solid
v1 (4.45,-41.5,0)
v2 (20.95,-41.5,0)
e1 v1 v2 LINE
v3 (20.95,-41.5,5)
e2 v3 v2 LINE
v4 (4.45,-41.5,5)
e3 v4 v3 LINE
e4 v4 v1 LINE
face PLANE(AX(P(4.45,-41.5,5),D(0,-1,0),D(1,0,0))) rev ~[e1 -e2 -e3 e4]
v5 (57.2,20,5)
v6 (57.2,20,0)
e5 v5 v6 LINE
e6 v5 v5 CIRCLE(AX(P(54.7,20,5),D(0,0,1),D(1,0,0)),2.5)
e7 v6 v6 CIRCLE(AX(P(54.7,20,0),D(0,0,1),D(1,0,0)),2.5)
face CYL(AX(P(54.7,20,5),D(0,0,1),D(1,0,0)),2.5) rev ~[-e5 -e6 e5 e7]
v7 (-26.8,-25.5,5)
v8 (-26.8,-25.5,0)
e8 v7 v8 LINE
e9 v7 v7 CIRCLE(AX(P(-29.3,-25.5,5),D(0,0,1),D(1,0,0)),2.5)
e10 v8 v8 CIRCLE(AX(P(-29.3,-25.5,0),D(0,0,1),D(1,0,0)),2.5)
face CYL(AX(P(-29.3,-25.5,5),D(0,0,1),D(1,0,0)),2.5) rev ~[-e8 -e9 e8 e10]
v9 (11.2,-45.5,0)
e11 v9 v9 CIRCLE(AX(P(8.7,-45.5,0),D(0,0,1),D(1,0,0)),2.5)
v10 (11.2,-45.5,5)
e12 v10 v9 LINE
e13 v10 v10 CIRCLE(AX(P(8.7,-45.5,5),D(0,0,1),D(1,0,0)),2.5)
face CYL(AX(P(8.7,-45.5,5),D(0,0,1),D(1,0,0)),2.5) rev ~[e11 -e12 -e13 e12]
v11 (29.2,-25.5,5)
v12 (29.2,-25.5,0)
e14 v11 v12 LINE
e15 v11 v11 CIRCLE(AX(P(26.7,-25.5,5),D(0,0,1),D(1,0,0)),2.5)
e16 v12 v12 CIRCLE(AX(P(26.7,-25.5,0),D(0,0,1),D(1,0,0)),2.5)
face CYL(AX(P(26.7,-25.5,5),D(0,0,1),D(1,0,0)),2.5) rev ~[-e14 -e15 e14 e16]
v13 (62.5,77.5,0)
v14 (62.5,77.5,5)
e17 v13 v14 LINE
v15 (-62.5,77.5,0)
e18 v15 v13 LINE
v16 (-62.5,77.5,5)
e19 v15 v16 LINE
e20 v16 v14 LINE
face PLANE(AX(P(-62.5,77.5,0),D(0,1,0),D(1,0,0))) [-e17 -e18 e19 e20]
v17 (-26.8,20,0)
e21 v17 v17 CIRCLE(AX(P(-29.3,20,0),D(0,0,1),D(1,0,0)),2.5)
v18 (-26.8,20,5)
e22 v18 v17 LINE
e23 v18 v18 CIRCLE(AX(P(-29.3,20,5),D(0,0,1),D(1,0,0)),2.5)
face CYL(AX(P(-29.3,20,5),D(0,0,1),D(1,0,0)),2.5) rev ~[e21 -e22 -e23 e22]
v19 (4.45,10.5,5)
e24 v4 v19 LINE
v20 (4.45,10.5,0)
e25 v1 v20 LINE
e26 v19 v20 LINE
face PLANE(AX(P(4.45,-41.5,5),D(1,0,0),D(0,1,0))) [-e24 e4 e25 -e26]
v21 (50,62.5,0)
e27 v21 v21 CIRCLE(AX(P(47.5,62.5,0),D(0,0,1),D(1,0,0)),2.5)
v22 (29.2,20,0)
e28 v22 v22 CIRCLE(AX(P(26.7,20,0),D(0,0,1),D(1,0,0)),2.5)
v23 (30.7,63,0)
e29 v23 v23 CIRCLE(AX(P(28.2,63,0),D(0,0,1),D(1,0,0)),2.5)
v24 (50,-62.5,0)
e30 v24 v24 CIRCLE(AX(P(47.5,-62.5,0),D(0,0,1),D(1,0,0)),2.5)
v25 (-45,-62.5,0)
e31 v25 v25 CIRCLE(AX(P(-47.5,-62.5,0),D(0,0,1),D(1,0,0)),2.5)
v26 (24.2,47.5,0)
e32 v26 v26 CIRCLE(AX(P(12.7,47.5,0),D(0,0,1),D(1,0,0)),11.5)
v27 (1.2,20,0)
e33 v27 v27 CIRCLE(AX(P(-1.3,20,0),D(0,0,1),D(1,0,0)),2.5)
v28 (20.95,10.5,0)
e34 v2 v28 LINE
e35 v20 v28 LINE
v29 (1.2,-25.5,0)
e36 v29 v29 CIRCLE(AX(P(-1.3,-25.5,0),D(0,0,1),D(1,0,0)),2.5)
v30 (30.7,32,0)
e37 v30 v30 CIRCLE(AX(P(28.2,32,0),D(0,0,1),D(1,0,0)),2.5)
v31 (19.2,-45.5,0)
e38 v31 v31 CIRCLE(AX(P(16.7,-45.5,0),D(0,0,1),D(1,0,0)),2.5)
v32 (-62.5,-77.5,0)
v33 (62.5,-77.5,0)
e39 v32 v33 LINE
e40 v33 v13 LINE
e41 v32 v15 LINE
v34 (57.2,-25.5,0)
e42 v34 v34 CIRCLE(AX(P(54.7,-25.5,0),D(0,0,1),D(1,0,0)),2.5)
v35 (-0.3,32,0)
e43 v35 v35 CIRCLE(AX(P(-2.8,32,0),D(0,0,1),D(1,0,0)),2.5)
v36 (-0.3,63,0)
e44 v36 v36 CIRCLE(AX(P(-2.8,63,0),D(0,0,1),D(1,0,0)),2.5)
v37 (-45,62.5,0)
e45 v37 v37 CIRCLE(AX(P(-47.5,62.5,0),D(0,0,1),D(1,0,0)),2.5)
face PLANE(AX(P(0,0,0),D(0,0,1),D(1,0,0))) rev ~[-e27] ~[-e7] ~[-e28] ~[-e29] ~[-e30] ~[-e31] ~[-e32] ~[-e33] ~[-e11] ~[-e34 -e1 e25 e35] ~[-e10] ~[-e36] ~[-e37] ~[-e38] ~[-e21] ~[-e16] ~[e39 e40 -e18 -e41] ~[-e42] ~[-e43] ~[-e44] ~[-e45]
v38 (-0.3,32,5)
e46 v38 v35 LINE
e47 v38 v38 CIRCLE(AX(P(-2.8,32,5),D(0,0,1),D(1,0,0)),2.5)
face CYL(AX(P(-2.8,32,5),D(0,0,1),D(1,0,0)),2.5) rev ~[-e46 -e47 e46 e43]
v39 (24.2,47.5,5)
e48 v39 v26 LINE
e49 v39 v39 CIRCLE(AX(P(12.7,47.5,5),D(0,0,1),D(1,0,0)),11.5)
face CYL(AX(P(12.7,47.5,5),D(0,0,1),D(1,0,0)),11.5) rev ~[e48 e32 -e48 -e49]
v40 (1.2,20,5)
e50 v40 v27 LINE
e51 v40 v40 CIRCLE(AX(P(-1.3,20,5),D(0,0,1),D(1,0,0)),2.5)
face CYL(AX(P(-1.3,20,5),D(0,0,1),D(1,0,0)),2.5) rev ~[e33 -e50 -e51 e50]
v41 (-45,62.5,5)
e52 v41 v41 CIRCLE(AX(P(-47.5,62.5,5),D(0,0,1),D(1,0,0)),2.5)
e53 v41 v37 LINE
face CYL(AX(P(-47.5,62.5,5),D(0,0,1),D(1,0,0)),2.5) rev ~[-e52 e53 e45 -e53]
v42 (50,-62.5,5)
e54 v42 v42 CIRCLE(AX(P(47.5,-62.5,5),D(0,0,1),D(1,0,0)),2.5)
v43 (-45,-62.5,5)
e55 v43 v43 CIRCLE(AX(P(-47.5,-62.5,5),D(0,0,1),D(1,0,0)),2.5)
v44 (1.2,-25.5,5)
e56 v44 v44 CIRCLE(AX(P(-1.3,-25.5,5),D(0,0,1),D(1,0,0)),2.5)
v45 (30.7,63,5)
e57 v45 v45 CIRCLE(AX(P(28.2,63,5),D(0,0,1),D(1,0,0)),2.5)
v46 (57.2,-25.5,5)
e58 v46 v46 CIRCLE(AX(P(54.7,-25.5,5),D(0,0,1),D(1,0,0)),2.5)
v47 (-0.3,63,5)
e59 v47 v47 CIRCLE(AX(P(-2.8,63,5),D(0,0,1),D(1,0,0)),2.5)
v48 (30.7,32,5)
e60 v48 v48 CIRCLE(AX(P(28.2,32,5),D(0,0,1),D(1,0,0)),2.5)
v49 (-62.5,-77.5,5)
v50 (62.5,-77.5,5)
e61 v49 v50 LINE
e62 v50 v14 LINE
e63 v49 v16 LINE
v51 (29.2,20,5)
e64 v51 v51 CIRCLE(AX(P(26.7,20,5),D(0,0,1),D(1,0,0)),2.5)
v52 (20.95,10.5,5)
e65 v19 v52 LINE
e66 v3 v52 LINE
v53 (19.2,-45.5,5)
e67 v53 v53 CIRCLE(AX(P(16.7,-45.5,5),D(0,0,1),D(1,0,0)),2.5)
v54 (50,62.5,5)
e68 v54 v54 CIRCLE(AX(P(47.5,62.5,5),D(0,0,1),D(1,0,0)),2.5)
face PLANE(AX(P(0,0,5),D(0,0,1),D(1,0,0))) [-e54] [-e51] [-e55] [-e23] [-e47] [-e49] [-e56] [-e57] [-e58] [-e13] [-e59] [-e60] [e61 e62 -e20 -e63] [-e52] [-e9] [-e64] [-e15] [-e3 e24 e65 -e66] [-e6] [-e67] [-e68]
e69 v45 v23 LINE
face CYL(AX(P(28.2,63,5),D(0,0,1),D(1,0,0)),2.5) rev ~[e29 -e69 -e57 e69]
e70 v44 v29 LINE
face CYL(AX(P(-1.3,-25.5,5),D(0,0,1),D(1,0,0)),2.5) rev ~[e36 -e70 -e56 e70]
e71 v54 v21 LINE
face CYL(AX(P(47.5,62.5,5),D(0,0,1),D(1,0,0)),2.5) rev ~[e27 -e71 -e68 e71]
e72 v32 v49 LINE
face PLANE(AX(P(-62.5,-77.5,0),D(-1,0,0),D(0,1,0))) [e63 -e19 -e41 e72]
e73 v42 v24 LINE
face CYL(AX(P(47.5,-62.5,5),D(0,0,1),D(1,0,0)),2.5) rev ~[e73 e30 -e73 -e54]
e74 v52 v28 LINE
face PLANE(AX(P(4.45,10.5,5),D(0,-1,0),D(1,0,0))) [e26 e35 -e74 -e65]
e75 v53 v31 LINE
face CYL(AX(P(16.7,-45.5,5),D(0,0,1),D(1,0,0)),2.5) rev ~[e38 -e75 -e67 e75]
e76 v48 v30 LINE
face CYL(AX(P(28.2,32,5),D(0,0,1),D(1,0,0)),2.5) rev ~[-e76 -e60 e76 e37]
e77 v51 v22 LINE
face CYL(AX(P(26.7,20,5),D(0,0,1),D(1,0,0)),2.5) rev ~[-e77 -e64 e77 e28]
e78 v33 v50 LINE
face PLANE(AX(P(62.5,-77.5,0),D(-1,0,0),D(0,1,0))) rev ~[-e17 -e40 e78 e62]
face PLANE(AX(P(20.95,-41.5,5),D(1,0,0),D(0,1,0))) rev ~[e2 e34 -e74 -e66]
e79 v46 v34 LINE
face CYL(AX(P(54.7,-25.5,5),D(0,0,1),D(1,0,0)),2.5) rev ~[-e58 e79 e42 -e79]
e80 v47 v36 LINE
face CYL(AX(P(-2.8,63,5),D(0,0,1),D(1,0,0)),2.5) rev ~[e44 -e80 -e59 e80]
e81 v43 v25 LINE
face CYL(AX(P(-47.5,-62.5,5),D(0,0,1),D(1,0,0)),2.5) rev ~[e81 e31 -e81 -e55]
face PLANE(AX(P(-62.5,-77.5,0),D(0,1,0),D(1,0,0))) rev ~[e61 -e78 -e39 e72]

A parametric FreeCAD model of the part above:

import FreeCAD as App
import Part
import Sketcher

V = App.Vector
Q = App.Units.Quantity

doc = App.newDocument("Part")
body = doc.addObject("PartDesign::Body", "Body")

# Sketch on XY plane
sketch1 = body.newObject("Sketcher::SketchObject", "Sketch")
sketch1.AttachmentSupport = (doc.getObject("XY_Plane"), [""])
sketch1.MapMode = "FlatFace"
sketch1.addGeometry(Part.LineSegment(V(-62, 78, 0), V(-62, -78, 0)), False)
sketch1.addGeometry(Part.LineSegment(V(-62, -78, 0), V(62, -78, 0)), False)
sketch1.addGeometry(Part.LineSegment(V(62, -78, 0), V(62, 78, 0)), False)
sketch1.addGeometry(Part.LineSegment(V(62, 78, 0), V(-62, 78, 0)), False)
sketch1.addConstraint(Sketcher.Constraint("Coincident", 0, 2, 1, 1))
sketch1.addConstraint(Sketcher.Constraint("Coincident", 1, 2, 2, 1))
sketch1.addConstraint(Sketcher.Constraint("Coincident", 2, 2, 3, 1))
sketch1.addConstraint(Sketcher.Constraint("Coincident", 3, 2, 0, 1))
sketch1.addConstraint(Sketcher.Constraint("Vertical", 0))
sketch1.addConstraint(Sketcher.Constraint("Horizontal", 1))
sketch1.addConstraint(Sketcher.Constraint("Vertical", 2))
sketch1.addConstraint(Sketcher.Constraint("Horizontal", 3))
sketch1.addConstraint(Sketcher.Constraint("Symmetric", 0, 2, 2, 2, -1, 1))
sketch1.addConstraint(Sketcher.Constraint("DistanceX", 1, 1, 1, 2, Q("125 mm")))
sketch1.addConstraint(Sketcher.Constraint("DistanceY", 0, 2, 0, 1, Q("155 mm")))
pad1 = body.newObject("PartDesign::Pad", "Pad")
pad1.Profile = sketch1
pad1.Length = 5

# Sketch on XY plane
sketch2 = body.newObject("Sketcher::SketchObject", "Sketch001")
sketch2.AttachmentSupport = (doc.getObject("XY_Plane"), [""])
sketch2.MapMode = "FlatFace"
sketch2.AttachmentOffset = App.Placement(V(0, 0, 5), App.Rotation())
sketch2.addGeometry(Part.Circle(V(-47.5, 62.5, 0), V(0, 0, 1), 2.5), False)
sketch2.addGeometry(Part.Circle(V(47.5, 62.5, 0), V(0, 0, 1), 2.5), False)
sketch2.addGeometry(Part.Circle(V(-47.5, -62.5, 0), V(0, 0, 1), 2.5), False)
sketch2.addGeometry(Part.Circle(V(47.5, -62.5, 0), V(0, 0, 1), 2.5), False)
sketch2.addConstraint(Sketcher.Constraint("Equal", 0, 1))
sketch2.addConstraint(Sketcher.Constraint("Equal", 1, 2))
sketch2.addConstraint(Sketcher.Constraint("Equal", 2, 3))
sketch2.addConstraint(Sketcher.Constraint("Symmetric", 1, 3, 2, 3, -1, 1))
sketch2.addConstraint(Sketcher.Constraint("Symmetric", 0, 3, 3, 3, -1, 1))
sketch2.addConstraint(Sketcher.Constraint("Symmetric", 0, 3, 1, 3, -2))
sketch2.addConstraint(Sketcher.Constraint("Diameter", 0, Q("5 mm")))
sketch2.addConstraint(Sketcher.Constraint("DistanceX", 0, 3, 1, 3, Q("95 mm")))
sketch2.addConstraint(Sketcher.Constraint("DistanceY", 2, 3, 0, 3, Q("125 mm")))
pocket1 = body.newObject("PartDesign::Pocket", "Pocket")
pocket1.Profile = sketch2
pocket1.Type = "ThroughAll"

# Sketch on XY plane
sketch3 = body.newObject("Sketcher::SketchObject", "Sketch002")
sketch3.AttachmentSupport = (doc.getObject("XY_Plane"), [""])
sketch3.MapMode = "FlatFace"
sketch3.AttachmentOffset = App.Placement(V(0, 0, 5), App.Rotation())
sketch3.addGeometry(Part.LineSegment(V(4, 10, 0), V(4, -42, 0)), False)
sketch3.addGeometry(Part.LineSegment(V(4, -42, 0), V(21, -42, 0)), False)
sketch3.addGeometry(Part.LineSegment(V(21, -42, 0), V(21, 10, 0)), False)
sketch3.addGeometry(Part.LineSegment(V(21, 10, 0), V(4, 10, 0)), False)
sketch3.addConstraint(Sketcher.Constraint("Coincident", 0, 2, 1, 1))
sketch3.addConstraint(Sketcher.Constraint("Coincident", 1, 2, 2, 1))
sketch3.addConstraint(Sketcher.Constraint("Coincident", 2, 2, 3, 1))
sketch3.addConstraint(Sketcher.Constraint("Coincident", 3, 2, 0, 1))
sketch3.addConstraint(Sketcher.Constraint("Vertical", 0))
sketch3.addConstraint(Sketcher.Constraint("Horizontal", 1))
sketch3.addConstraint(Sketcher.Constraint("Vertical", 2))
sketch3.addConstraint(Sketcher.Constraint("Horizontal", 3))
sketch3.addConstraint(Sketcher.Constraint("DistanceY", 0, 2, 0, 1, Q("52 mm")))
sketch3.addConstraint(Sketcher.Constraint("DistanceX", 1, 1, 1, 2, Q("16.5 mm")))
sketch3.addConstraint(Sketcher.Constraint("DistanceY", 0, 2, -1, 1, Q("41.5 mm")))
sketch3.addConstraint(Sketcher.Constraint("DistanceX", -1, 1, 0, 2, Q("4.45 mm")))
pocket2 = body.newObject("PartDesign::Pocket", "Pocket001")
pocket2.Profile = sketch3
pocket2.Type = "ThroughAll"

# Sketch on XY plane
sketch4 = body.newObject("Sketcher::SketchObject", "Sketch003")
sketch4.AttachmentSupport = (doc.getObject("XY_Plane"), [""])
sketch4.MapMode = "FlatFace"
sketch4.AttachmentOffset = App.Placement(V(0, 0, 5), App.Rotation())
sketch4.addGeometry(Part.Circle(V(12.7, 47.5, 0), V(0, 0, 1), 11.5), False)
sketch4.addGeometry(Part.Circle(V(-2.8, 63, 0), V(0, 0, 1), 2.5), False)
sketch4.addGeometry(Part.Circle(V(28.2, 63, 0), V(0, 0, 1), 2.5), False)
sketch4.addGeometry(Part.Circle(V(28.2, 32, 0), V(0, 0, 1), 2.5), False)
sketch4.addGeometry(Part.Circle(V(-2.8, 32, 0), V(0, 0, 1), 2.5), False)
sketch4.addConstraint(Sketcher.Constraint("Equal", 1, 2))
sketch4.addConstraint(Sketcher.Constraint("Equal", 2, 3))
sketch4.addConstraint(Sketcher.Constraint("Equal", 3, 4))
sketch4.addConstraint(Sketcher.Constraint("Horizontal", 1, 3, 2, 3))
sketch4.addConstraint(Sketcher.Constraint("Horizontal", 3, 3, 4, 3))
sketch4.addConstraint(Sketcher.Constraint("Vertical", 2, 3, 3, 3))
sketch4.addConstraint(Sketcher.Constraint("Vertical", 1, 3, 4, 3))
sketch4.addConstraint(Sketcher.Constraint("Diameter", 0, Q("23 mm")))
sketch4.addConstraint(Sketcher.Constraint("Diameter", 1, Q("5 mm")))
sketch4.addConstraint(Sketcher.Constraint("DistanceY", -1, 1, 1, 3, Q("63 mm")))
sketch4.addConstraint(Sketcher.Constraint("DistanceY", -1, 1, 3, 3, Q("32 mm")))
sketch4.addConstraint(Sketcher.Constraint("DistanceX", 1, 3, 2, 3, Q("31 mm")))
sketch4.addConstraint(Sketcher.Constraint("DistanceX", -1, 1, 0, 3, Q("12.7 mm")))
sketch4.addConstraint(Sketcher.Constraint("DistanceY", -1, 1, 0, 3, Q("47.5 mm")))
sketch4.addConstraint(Sketcher.Constraint("DistanceX", 1, 3, -1, 1, Q("2.8 mm")))
pocket3 = body.newObject("PartDesign::Pocket", "Pocket002")
pocket3.Profile = sketch4
pocket3.Type = "ThroughAll"

# Sketch on XY plane
sketch5 = body.newObject("Sketcher::SketchObject", "Sketch004")
sketch5.AttachmentSupport = (doc.getObject("XY_Plane"), [""])
sketch5.MapMode = "FlatFace"
sketch5.AttachmentOffset = App.Placement(V(0, 0, 5), App.Rotation())
sketch5.addGeometry(Part.Circle(V(8.7, -45.5, 0), V(0, 0, 1), 2.5), False)
sketch5.addGeometry(Part.Circle(V(16.7, -45.5, 0), V(0, 0, 1), 2.5), False)
sketch5.addConstraint(Sketcher.Constraint("Equal", 0, 1))
sketch5.addConstraint(Sketcher.Constraint("Horizontal", 0, 3, 1, 3))
sketch5.addConstraint(Sketcher.Constraint("Diameter", 0, Q("5 mm")))
sketch5.addConstraint(Sketcher.Constraint("DistanceX", 0, 3, 1, 3, Q("8 mm")))
sketch5.addConstraint(Sketcher.Constraint("DistanceX", -1, 1, 0, 3, Q("8.7 mm")))
sketch5.addConstraint(Sketcher.Constraint("DistanceY", 0, 3, -1, 1, Q("45.5 mm")))
pocket4 = body.newObject("PartDesign::Pocket", "Pocket003")
pocket4.Profile = sketch5
pocket4.Type = "ThroughAll"

# Sketch on XY plane
sketch6 = body.newObject("Sketcher::SketchObject", "Sketch005")
sketch6.AttachmentSupport = (doc.getObject("XY_Plane"), [""])
sketch6.MapMode = "FlatFace"
sketch6.AttachmentOffset = App.Placement(V(0, 0, 5), App.Rotation())
sketch6.addGeometry(Part.Circle(V(26.7, 20, 0), V(0, 0, 1), 2.5), False)
sketch6.addGeometry(Part.Circle(V(54.7, 20, 0), V(0, 0, 1), 2.5), False)
sketch6.addGeometry(Part.Circle(V(26.7, -25.5, 0), V(0, 0, 1), 2.5), False)
sketch6.addGeometry(Part.Circle(V(54.7, -25.5, 0), V(0, 0, 1), 2.5), False)
sketch6.addGeometry(Part.Circle(V(-1.3, 20, 0), V(0, 0, 1), 2.5), False)
sketch6.addGeometry(Part.Circle(V(-29.3, 20, 0), V(0, 0, 1), 2.5), False)
sketch6.addGeometry(Part.Circle(V(-29.3, -25.5, 0), V(0, 0, 1), 2.5), False)
sketch6.addGeometry(Part.Circle(V(-1.3, -25.5, 0), V(0, 0, 1), 2.5), False)
sketch6.addConstraint(Sketcher.Constraint("Equal", 0, 1))
sketch6.addConstraint(Sketcher.Constraint("Equal", 1, 2))
sketch6.addConstraint(Sketcher.Constraint("Equal", 2, 3))
sketch6.addConstraint(Sketcher.Constraint("Equal", 3, 4))
sketch6.addConstraint(Sketcher.Constraint("Equal", 4, 5))
sketch6.addConstraint(Sketcher.Constraint("Equal", 5, 6))
sketch6.addConstraint(Sketcher.Constraint("Equal", 6, 7))
sketch6.addConstraint(Sketcher.Constraint("Horizontal", 0, 3, 1, 3))
sketch6.addConstraint(Sketcher.Constraint("Horizontal", 2, 3, 3, 3))
sketch6.addConstraint(Sketcher.Constraint("Horizontal", 1, 3, 4, 3))
sketch6.addConstraint(Sketcher.Constraint("Horizontal", 4, 3, 5, 3))
sketch6.addConstraint(Sketcher.Constraint("Horizontal", 3, 3, 6, 3))
sketch6.addConstraint(Sketcher.Constraint("Horizontal", 6, 3, 7, 3))
sketch6.addConstraint(Sketcher.Constraint("Vertical", 0, 3, 2, 3))
sketch6.addConstraint(Sketcher.Constraint("Vertical", 1, 3, 3, 3))
sketch6.addConstraint(Sketcher.Constraint("Vertical", 5, 3, 6, 3))
sketch6.addConstraint(Sketcher.Constraint("Vertical", 4, 3, 7, 3))
sketch6.addConstraint(Sketcher.Constraint("Diameter", 0, Q("5 mm")))
sketch6.addConstraint(Sketcher.Constraint("DistanceY", -1, 1, 0, 3, Q("20 mm")))
sketch6.addConstraint(Sketcher.Constraint("DistanceX", 0, 3, 1, 3, Q("28 mm")))
sketch6.addConstraint(Sketcher.Constraint("DistanceX", 4, 3, 0, 3, Q("28 mm")))
sketch6.addConstraint(Sketcher.Constraint("DistanceX", 5, 3, 4, 3, Q("28 mm")))
sketch6.addConstraint(Sketcher.Constraint("DistanceX", -1, 1, 0, 3, Q("26.7 mm")))
sketch6.addConstraint(Sketcher.Constraint("DistanceY", 2, 3, -1, 1, Q("25.5 mm")))
pocket5 = body.newObject("PartDesign::Pocket", "Pocket004")
pocket5.Profile = sketch6
pocket5.Type = "ThroughAll"

doc.recompute()
